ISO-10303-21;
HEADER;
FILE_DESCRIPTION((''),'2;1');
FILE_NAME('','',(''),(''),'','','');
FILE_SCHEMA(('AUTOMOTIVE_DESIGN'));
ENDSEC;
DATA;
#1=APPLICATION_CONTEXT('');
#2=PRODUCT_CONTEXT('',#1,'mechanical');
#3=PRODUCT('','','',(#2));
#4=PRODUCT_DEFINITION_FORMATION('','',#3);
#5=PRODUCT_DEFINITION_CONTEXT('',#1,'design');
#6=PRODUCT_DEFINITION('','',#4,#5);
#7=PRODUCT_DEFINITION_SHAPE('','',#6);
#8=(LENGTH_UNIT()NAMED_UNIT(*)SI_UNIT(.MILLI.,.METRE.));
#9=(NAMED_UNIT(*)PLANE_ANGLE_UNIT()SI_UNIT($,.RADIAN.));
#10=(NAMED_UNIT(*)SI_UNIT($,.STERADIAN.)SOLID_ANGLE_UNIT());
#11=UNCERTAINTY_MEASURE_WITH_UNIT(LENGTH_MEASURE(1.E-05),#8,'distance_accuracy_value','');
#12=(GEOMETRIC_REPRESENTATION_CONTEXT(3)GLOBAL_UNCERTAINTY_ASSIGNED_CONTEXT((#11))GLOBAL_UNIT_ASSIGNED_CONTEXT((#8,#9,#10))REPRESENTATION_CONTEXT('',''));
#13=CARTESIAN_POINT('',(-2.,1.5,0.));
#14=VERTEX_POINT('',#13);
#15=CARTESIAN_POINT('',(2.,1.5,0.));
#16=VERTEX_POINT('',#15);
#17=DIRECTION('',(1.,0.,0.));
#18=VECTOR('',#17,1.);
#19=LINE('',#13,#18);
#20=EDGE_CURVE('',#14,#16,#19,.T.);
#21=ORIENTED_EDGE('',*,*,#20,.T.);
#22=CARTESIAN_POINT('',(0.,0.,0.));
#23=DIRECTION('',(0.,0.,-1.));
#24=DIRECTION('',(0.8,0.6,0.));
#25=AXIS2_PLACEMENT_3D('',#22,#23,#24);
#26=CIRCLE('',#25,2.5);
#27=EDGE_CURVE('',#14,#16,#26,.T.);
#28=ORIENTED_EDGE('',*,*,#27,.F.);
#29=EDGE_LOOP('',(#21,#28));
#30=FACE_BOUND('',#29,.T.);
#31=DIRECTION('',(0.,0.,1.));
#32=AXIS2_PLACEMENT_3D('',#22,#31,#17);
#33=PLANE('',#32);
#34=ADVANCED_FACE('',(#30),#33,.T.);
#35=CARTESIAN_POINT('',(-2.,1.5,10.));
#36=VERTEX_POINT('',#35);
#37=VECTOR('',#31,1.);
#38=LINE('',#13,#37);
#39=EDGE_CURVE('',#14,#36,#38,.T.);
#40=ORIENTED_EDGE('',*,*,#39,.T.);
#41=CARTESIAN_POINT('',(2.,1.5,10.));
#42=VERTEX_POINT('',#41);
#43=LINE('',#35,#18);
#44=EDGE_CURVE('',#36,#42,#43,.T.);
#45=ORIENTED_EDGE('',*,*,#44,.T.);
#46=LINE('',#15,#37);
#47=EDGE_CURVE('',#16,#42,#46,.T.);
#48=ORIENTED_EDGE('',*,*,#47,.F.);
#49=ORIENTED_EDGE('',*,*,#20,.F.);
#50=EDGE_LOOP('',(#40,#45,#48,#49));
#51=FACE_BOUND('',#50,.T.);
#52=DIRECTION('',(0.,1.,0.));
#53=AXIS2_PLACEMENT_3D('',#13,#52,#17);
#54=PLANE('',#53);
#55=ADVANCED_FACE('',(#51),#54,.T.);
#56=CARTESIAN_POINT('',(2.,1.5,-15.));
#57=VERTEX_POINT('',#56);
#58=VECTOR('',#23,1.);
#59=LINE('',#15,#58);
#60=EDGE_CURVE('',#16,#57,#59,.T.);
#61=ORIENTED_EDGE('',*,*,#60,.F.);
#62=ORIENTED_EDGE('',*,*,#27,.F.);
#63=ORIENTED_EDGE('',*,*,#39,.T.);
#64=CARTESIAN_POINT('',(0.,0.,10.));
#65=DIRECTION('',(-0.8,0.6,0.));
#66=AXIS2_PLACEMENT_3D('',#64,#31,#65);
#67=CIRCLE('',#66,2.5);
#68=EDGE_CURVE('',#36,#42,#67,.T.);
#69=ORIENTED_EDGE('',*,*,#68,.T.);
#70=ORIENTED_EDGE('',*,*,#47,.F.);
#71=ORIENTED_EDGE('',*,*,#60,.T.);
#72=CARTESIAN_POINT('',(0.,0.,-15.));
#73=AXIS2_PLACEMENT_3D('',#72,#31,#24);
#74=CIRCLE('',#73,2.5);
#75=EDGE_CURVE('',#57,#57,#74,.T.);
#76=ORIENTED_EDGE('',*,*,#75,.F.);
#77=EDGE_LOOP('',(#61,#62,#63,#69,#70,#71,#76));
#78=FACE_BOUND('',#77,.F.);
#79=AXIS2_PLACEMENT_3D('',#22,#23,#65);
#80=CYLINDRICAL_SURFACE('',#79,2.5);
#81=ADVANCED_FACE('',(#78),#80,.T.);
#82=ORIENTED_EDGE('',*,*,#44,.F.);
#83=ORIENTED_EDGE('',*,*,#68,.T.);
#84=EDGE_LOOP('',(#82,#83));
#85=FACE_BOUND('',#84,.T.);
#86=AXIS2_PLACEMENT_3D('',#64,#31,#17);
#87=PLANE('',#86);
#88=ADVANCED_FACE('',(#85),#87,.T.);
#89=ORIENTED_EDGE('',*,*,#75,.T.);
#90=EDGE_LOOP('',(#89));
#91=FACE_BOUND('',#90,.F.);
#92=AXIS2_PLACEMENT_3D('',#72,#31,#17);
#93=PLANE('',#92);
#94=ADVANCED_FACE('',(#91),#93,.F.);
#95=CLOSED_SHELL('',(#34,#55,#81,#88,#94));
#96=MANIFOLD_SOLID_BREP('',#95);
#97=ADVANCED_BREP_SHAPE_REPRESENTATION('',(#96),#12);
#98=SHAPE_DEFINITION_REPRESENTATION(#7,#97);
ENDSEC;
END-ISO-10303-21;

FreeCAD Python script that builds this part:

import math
import FreeCAD as App
import Part
import Sketcher

doc = App.newDocument("Part")
body = doc.addObject("PartDesign::Body", "Body")

# Sketch on XY plane
sketch1 = body.newObject("Sketcher::SketchObject", "Sketch")
sketch1.AttachmentSupport = (doc.getObject("XY_Plane"), [""])
sketch1.MapMode = "FlatFace"
sketch1.addGeometry([
    Part.LineSegment(App.Vector(2, 1.5, 0), App.Vector(-2, 1.5, 0)),
    Part.ArcOfCircle(Part.Circle(App.Vector(0, 0, 0), App.Vector(0, 0, 1), 2.5), math.radians(143.130102), math.radians(396.869898)),
], False)
sketch1.addConstraint([
    Sketcher.Constraint("Coincident", 0, 1, 1, 2),
    Sketcher.Constraint("Coincident", 1, 1, 0, 2),
    Sketcher.Constraint("Horizontal", 0),
    Sketcher.Constraint("Coincident", 1, 3, -1, 1),
    Sketcher.Constraint("Radius", 1, 2.5),
    Sketcher.Constraint("DistanceX", 0, 2, 0, 1, 4.0),
])
pad1 = body.newObject("PartDesign::Pad", "Pad")
pad1.Profile = sketch1
pad1.Length = 10

# Sketch on XY plane
sketch2 = body.newObject("Sketcher::SketchObject", "Sketch001")
sketch2.AttachmentSupport = (doc.getObject("XY_Plane"), [""])
sketch2.MapMode = "FlatFace"
sketch2.addGeometry(Part.Circle(App.Vector(0, 0, 0), App.Vector(0, 0, 1), 2.5), False)
sketch2.addConstraint([
    Sketcher.Constraint("Coincident", 0, 3, -1, 1),
    Sketcher.Constraint("Diameter", 0, 5.0),
])
pad2 = body.newObject("PartDesign::Pad", "Pad001")
pad2.Profile = sketch2
pad2.Length = 15
pad2.Reversed = True

doc.recompute()
